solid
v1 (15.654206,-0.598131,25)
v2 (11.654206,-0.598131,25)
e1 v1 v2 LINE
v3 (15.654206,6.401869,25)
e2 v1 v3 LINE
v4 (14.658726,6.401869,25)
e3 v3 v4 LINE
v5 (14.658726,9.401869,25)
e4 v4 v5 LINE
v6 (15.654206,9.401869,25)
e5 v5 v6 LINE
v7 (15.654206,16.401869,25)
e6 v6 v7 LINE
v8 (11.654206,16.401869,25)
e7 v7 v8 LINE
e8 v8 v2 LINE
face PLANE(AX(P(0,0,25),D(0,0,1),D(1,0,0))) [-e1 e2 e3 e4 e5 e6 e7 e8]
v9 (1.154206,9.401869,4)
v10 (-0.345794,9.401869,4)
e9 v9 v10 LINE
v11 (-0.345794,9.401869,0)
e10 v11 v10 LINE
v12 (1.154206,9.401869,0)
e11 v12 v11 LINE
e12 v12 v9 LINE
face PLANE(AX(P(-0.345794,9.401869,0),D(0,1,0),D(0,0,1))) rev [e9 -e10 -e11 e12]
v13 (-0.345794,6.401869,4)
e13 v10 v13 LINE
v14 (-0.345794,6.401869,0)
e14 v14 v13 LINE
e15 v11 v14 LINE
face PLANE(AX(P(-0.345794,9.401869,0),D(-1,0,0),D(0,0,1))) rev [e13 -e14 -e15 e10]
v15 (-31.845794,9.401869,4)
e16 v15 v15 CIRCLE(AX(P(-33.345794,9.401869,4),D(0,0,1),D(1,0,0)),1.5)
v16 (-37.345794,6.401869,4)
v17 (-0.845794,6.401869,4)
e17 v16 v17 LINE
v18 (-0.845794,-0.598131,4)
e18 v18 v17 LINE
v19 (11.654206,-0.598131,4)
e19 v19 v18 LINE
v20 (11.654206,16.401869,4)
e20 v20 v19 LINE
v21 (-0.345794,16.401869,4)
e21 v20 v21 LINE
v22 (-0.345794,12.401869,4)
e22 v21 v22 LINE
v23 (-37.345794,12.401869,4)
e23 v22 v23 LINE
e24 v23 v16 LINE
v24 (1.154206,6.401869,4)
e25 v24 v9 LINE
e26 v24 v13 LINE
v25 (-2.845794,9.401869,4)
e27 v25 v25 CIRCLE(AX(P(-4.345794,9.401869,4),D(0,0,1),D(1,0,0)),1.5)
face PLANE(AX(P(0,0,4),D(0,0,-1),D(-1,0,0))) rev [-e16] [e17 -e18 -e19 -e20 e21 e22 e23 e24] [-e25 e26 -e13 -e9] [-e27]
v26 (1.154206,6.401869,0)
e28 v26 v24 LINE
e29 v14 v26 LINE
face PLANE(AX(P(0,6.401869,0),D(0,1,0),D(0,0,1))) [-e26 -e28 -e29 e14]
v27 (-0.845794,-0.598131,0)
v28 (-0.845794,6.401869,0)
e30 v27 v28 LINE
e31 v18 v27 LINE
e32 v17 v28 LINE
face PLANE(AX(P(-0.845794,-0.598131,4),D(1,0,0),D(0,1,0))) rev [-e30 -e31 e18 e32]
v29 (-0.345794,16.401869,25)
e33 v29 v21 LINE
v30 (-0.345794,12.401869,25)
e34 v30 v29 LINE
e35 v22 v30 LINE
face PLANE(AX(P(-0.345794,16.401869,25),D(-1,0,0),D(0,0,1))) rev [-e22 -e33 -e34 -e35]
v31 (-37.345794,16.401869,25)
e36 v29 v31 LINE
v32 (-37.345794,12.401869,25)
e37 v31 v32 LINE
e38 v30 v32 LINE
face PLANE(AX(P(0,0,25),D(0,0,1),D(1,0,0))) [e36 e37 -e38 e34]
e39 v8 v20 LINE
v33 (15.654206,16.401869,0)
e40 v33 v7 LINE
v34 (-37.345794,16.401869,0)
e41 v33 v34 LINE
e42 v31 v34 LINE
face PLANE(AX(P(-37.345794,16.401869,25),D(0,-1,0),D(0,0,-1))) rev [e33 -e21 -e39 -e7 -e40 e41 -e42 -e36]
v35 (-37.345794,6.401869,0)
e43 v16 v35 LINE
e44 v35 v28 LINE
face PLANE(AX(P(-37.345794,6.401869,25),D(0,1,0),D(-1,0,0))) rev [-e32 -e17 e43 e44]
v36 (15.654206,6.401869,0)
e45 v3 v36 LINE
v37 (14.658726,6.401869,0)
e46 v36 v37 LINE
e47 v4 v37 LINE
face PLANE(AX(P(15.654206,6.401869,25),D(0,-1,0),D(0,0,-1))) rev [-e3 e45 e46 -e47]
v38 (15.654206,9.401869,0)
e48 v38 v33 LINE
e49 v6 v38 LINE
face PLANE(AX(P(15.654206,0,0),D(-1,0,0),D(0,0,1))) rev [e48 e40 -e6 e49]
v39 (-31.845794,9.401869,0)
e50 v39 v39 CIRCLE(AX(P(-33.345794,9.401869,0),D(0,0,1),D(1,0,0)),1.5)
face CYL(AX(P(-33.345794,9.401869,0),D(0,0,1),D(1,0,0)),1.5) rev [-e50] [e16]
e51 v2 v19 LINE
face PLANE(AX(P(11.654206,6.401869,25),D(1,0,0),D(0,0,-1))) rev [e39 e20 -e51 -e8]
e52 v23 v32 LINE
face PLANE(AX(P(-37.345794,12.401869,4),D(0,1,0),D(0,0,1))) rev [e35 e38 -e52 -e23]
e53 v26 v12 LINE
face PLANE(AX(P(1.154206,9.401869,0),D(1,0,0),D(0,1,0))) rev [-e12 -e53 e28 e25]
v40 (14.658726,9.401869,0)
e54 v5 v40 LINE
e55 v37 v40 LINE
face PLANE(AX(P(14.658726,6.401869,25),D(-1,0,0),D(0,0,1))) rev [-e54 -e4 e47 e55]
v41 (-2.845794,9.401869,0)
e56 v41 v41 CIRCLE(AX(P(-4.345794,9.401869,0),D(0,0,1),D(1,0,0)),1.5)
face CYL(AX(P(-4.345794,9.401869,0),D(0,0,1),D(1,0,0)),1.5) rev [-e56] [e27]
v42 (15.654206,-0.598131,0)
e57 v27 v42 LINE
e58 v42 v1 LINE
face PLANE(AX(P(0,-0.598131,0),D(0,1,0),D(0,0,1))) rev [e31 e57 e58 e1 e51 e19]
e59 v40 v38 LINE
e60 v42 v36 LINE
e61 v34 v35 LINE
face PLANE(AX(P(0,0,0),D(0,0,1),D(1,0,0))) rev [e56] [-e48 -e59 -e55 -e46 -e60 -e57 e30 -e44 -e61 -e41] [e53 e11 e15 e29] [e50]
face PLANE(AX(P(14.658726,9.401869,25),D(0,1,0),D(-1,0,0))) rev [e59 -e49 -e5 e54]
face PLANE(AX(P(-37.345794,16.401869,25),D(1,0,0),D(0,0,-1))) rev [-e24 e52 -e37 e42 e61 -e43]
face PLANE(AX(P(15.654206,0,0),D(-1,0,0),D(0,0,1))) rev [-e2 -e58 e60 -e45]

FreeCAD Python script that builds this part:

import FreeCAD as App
import Part
import Sketcher
Q = App.Units.Quantity


def add_polygon(sketch, points):
    """Adds a closed chain of lines whose ends are joined by coincident constraints."""
    first, n = sketch.GeometryCount, len(points)
    for a, b in zip(points, points[1:] + points[:1]):
        sketch.addGeometry(Part.LineSegment(App.Vector(*a, 0), App.Vector(*b, 0)), False)
    for i in range(n):
        sketch.addConstraint(Sketcher.Constraint("Coincident", first + i, 2, first + (i + 1) % n, 1))

doc = App.newDocument("Part")
body = doc.addObject("PartDesign::Body", "Body")

sketch1 = body.newObject("Sketcher::SketchObject", "Sketch")
sketch1.AttachmentSupport = (doc.getObject("XY_Plane"), [""])
sketch1.MapMode = "FlatFace"
add_polygon(sketch1, [(-37.345794, 16.401869), (-37.345794, 6.401869), (-0.345794, 6.401869), (-0.345794, 16.401869)])
sketch1.addConstraint(Sketcher.Constraint("Vertical", 0))
sketch1.addConstraint(Sketcher.Constraint("Horizontal", 1))
sketch1.addConstraint(Sketcher.Constraint("Vertical", 2))
sketch1.addConstraint(Sketcher.Constraint("Horizontal", 3))
sketch1.addConstraint(Sketcher.Constraint("DistanceX", 1, 1, 1, 2, Q("37 mm")))
sketch1.addConstraint(Sketcher.Constraint("DistanceY", 0, 2, 0, 1, Q("10 mm")))
sketch1.addConstraint(Sketcher.Constraint("DistanceY", -1, 1, 0, 2, Q("6.401869 mm")))
sketch1.addConstraint(Sketcher.Constraint("DistanceX", 0, 2, -1, 1, Q("37.345794 mm")))
pad1 = body.newObject("PartDesign::Pad", "Pad")
pad1.Profile = sketch1
pad1.Length = 25

sketch2 = body.newObject("Sketcher::SketchObject", "Sketch001")
sketch2.AttachmentSupport = (doc.getObject("XY_Plane"), [""])
sketch2.MapMode = "FlatFace"
sketch2.AttachmentOffset = App.Placement(App.Vector(0, 0, 25), App.Rotation())
add_polygon(sketch2, [(-37.345794, 12.401869), (-37.345794, 6.401869), (-0.345794, 6.401869), (-0.345794, 12.401869)])
sketch2.addConstraint(Sketcher.Constraint("Vertical", 0))
sketch2.addConstraint(Sketcher.Constraint("Horizontal", 1))
sketch2.addConstraint(Sketcher.Constraint("Vertical", 2))
sketch2.addConstraint(Sketcher.Constraint("Horizontal", 3))
sketch2.addConstraint(Sketcher.Constraint("DistanceX", 1, 1, 1, 2, Q("37 mm")))
sketch2.addConstraint(Sketcher.Constraint("DistanceY", 0, 2, 0, 1, Q("6 mm")))
sketch2.addConstraint(Sketcher.Constraint("DistanceY", -1, 1, 0, 2, Q("6.401869 mm")))
sketch2.addConstraint(Sketcher.Constraint("DistanceX", 0, 2, -1, 1, Q("37.345794 mm")))
pocket1 = body.newObject("PartDesign::Pocket", "Pocket")
pocket1.Profile = sketch2
pocket1.Length = 21

sketch3 = body.newObject("Sketcher::SketchObject", "Sketch002")
sketch3.AttachmentSupport = (doc.getObject("XY_Plane"), [""])
sketch3.MapMode = "FlatFace"
sketch3.AttachmentOffset = App.Placement(App.Vector(0, 0, 4), App.Rotation())
sketch3.addGeometry(Part.Circle(App.Vector(-33.345794, 9.401869, 0), App.Vector(0, 0, 1), 1.5), False)
sketch3.addGeometry(Part.Circle(App.Vector(-4.345794, 9.401869, 0), App.Vector(0, 0, 1), 1.5), False)
sketch3.addConstraint(Sketcher.Constraint("Equal", 0, 1))
sketch3.addConstraint(Sketcher.Constraint("Horizontal", 0, 3, 1, 3))
sketch3.addConstraint(Sketcher.Constraint("Diameter", 0, Q("3 mm")))
sketch3.addConstraint(Sketcher.Constraint("DistanceX", 0, 3, 1, 3, Q("29 mm")))
sketch3.addConstraint(Sketcher.Constraint("DistanceY", -1, 1, 0, 3, Q("9.401869 mm")))
sketch3.addConstraint(Sketcher.Constraint("DistanceX", 0, 3, -1, 1, Q("33.345794 mm")))
pocket2 = body.newObject("PartDesign::Pocket", "Pocket001")
pocket2.Profile = sketch3
pocket2.Length = 4

sketch4 = body.newObject("Sketcher::SketchObject", "Sketch003")
sketch4.AttachmentSupport = (doc.getObject("YZ_Plane"), [""])
sketch4.MapMode = "FlatFace"
sketch4.AttachmentOffset = App.Placement(App.Vector(0, 0, -0.345794), App.Rotation())
add_polygon(sketch4, [(16.401869, 4), (6.401869, 4), (6.401869, 0), (16.401869, 0)])
sketch4.addConstraint(Sketcher.Constraint("Horizontal", 0))
sketch4.addConstraint(Sketcher.Constraint("Vertical", 1))
sketch4.addConstraint(Sketcher.Constraint("Horizontal", 2))
sketch4.addConstraint(Sketcher.Constraint("Vertical", 3))
sketch4.addConstraint(Sketcher.Constraint("PointOnObject", 1, 2, -1))
sketch4.addConstraint(Sketcher.Constraint("DistanceX", 0, 2, 0, 1, Q("10 mm")))
sketch4.addConstraint(Sketcher.Constraint("DistanceY", 1, 2, 1, 1, Q("4 mm")))
sketch4.addConstraint(Sketcher.Constraint("DistanceX", -1, 1, 0, 2, Q("6.401869 mm")))
pad2 = body.newObject("PartDesign::Pad", "Pad001")
pad2.Profile = sketch4
pad2.Length = 16

sketch5 = body.newObject("Sketcher::SketchObject", "Sketch004")
sketch5.AttachmentSupport = (doc.getObject("XY_Plane"), [""])
sketch5.MapMode = "FlatFace"
sketch5.AttachmentOffset = App.Placement(App.Vector(0, 0, 4), App.Rotation())
add_polygon(sketch5, [(11.654206, 16.401869), (11.654206, 6.401869), (15.654206, 6.401869), (15.654206, 16.401869)])
sketch5.addConstraint(Sketcher.Constraint("Vertical", 0))
sketch5.addConstraint(Sketcher.Constraint("Horizontal", 1))
sketch5.addConstraint(Sketcher.Constraint("Vertical", 2))
sketch5.addConstraint(Sketcher.Constraint("Horizontal", 3))
sketch5.addConstraint(Sketcher.Constraint("DistanceX", 1, 1, 1, 2, Q("4 mm")))
sketch5.addConstraint(Sketcher.Constraint("DistanceY", 0, 2, 0, 1, Q("10 mm")))
sketch5.addConstraint(Sketcher.Constraint("DistanceY", -1, 1, 0, 2, Q("6.401869 mm")))
sketch5.addConstraint(Sketcher.Constraint("DistanceX", -1, 1, 0, 2, Q("11.654206 mm")))
pad3 = body.newObject("PartDesign::Pad", "Pad002")
pad3.Profile = sketch5
pad3.Length = 21

sketch6 = body.newObject("Sketcher::SketchObject", "Sketch005")
sketch6.AttachmentSupport = (doc.getObject("XY_Plane"), [""])
sketch6.MapMode = "FlatFace"
sketch6.AttachmentOffset = App.Placement(App.Vector(0, 0, 4), App.Rotation())
add_polygon(sketch6, [(-0.345794, 9.401869), (-0.345794, 6.401869), (1.154206, 6.401869), (1.154206, 9.401869)])
sketch6.addConstraint(Sketcher.Constraint("Vertical", 0))
sketch6.addConstraint(Sketcher.Constraint("Horizontal", 1))
sketch6.addConstraint(Sketcher.Constraint("Vertical", 2))
sketch6.addConstraint(Sketcher.Constraint("Horizontal", 3))
sketch6.addConstraint(Sketcher.Constraint("DistanceY", 0, 2, 0, 1, Q("3 mm")))
sketch6.addConstraint(Sketcher.Constraint("DistanceX", 1, 1, 1, 2, Q("1.5 mm")))
sketch6.addConstraint(Sketcher.Constraint("DistanceY", -1, 1, 0, 2, Q("6.401869 mm")))
sketch6.addConstraint(Sketcher.Constraint("DistanceX", 0, 2, -1, 1, Q("0.345794 mm")))
pocket3 = body.newObject("PartDesign::Pocket", "Pocket002")
pocket3.Profile = sketch6
pocket3.Length = 4

sketch7 = body.newObject("Sketcher::SketchObject", "Sketch006")
sketch7.AttachmentSupport = (doc.getObject("XZ_Plane"), [""])
sketch7.MapMode = "FlatFace"
sketch7.AttachmentOffset = App.Placement(App.Vector(0, 0, -6.401869), App.Rotation())
add_polygon(sketch7, [(15.654206, 25), (11.654206, 25), (11.654206, 4), (-0.845794, 4), (-0.845794, 0), (15.654206, 0)])
sketch7.addConstraint(Sketcher.Constraint("Horizontal", 0))
sketch7.addConstraint(Sketcher.Constraint("Vertical", 1))
sketch7.addConstraint(Sketcher.Constraint("Horizontal", 2))
sketch7.addConstraint(Sketcher.Constraint("Vertical", 3))
sketch7.addConstraint(Sketcher.Constraint("Horizontal", 4))
sketch7.addConstraint(Sketcher.Constraint("Vertical", 5))
sketch7.addConstraint(Sketcher.Constraint("PointOnObject", 3, 2, -1))
sketch7.addConstraint(Sketcher.Constraint("Equal", 0, 3))
sketch7.addConstraint(Sketcher.Constraint("DistanceX", 0, 2, 0, 1, Q("4 mm")))
sketch7.addConstraint(Sketcher.Constraint("DistanceY", 1, 2, 1, 1, Q("21 mm")))
sketch7.addConstraint(Sketcher.Constraint("DistanceX", 2, 2, 2, 1, Q("12.5 mm")))
sketch7.addConstraint(Sketcher.Constraint("DistanceX", -1, 1, 0, 2, Q("11.654206 mm")))
pad4 = body.newObject("PartDesign::Pad", "Pad003")
pad4.Profile = sketch7
pad4.Length = 7

sketch8 = body.newObject("Sketcher::SketchObject", "Sketch007")
sketch8.AttachmentSupport = (doc.getObject("XY_Plane"), [""])
sketch8.MapMode = "FlatFace"
sketch8.AttachmentOffset = App.Placement(App.Vector(0, 0, 25), App.Rotation())
add_polygon(sketch8, [(15.654206, 9.401869), (15.654206, 6.401869), (14.658726, 6.401869), (14.658726, 9.401869)])
sketch8.addConstraint(Sketcher.Constraint("Vertical", 0))
sketch8.addConstraint(Sketcher.Constraint("Horizontal", 1))
sketch8.addConstraint(Sketcher.Constraint("Vertical", 2))
sketch8.addConstraint(Sketcher.Constraint("Horizontal", 3))
sketch8.addConstraint(Sketcher.Constraint("DistanceY", 0, 2, 0, 1, Q("3 mm")))
sketch8.addConstraint(Sketcher.Constraint("DistanceX", 1, 2, 1, 1, Q("0.995479 mm")))
sketch8.addConstraint(Sketcher.Constraint("DistanceY", -1, 1, 0, 2, Q("6.401869 mm")))
sketch8.addConstraint(Sketcher.Constraint("DistanceX", -1, 1, 0, 2, Q("15.654206 mm")))
pocket4 = body.newObject("PartDesign::Pocket", "Pocket003")
pocket4.Profile = sketch8
pocket4.Length = 25

doc.recompute()
